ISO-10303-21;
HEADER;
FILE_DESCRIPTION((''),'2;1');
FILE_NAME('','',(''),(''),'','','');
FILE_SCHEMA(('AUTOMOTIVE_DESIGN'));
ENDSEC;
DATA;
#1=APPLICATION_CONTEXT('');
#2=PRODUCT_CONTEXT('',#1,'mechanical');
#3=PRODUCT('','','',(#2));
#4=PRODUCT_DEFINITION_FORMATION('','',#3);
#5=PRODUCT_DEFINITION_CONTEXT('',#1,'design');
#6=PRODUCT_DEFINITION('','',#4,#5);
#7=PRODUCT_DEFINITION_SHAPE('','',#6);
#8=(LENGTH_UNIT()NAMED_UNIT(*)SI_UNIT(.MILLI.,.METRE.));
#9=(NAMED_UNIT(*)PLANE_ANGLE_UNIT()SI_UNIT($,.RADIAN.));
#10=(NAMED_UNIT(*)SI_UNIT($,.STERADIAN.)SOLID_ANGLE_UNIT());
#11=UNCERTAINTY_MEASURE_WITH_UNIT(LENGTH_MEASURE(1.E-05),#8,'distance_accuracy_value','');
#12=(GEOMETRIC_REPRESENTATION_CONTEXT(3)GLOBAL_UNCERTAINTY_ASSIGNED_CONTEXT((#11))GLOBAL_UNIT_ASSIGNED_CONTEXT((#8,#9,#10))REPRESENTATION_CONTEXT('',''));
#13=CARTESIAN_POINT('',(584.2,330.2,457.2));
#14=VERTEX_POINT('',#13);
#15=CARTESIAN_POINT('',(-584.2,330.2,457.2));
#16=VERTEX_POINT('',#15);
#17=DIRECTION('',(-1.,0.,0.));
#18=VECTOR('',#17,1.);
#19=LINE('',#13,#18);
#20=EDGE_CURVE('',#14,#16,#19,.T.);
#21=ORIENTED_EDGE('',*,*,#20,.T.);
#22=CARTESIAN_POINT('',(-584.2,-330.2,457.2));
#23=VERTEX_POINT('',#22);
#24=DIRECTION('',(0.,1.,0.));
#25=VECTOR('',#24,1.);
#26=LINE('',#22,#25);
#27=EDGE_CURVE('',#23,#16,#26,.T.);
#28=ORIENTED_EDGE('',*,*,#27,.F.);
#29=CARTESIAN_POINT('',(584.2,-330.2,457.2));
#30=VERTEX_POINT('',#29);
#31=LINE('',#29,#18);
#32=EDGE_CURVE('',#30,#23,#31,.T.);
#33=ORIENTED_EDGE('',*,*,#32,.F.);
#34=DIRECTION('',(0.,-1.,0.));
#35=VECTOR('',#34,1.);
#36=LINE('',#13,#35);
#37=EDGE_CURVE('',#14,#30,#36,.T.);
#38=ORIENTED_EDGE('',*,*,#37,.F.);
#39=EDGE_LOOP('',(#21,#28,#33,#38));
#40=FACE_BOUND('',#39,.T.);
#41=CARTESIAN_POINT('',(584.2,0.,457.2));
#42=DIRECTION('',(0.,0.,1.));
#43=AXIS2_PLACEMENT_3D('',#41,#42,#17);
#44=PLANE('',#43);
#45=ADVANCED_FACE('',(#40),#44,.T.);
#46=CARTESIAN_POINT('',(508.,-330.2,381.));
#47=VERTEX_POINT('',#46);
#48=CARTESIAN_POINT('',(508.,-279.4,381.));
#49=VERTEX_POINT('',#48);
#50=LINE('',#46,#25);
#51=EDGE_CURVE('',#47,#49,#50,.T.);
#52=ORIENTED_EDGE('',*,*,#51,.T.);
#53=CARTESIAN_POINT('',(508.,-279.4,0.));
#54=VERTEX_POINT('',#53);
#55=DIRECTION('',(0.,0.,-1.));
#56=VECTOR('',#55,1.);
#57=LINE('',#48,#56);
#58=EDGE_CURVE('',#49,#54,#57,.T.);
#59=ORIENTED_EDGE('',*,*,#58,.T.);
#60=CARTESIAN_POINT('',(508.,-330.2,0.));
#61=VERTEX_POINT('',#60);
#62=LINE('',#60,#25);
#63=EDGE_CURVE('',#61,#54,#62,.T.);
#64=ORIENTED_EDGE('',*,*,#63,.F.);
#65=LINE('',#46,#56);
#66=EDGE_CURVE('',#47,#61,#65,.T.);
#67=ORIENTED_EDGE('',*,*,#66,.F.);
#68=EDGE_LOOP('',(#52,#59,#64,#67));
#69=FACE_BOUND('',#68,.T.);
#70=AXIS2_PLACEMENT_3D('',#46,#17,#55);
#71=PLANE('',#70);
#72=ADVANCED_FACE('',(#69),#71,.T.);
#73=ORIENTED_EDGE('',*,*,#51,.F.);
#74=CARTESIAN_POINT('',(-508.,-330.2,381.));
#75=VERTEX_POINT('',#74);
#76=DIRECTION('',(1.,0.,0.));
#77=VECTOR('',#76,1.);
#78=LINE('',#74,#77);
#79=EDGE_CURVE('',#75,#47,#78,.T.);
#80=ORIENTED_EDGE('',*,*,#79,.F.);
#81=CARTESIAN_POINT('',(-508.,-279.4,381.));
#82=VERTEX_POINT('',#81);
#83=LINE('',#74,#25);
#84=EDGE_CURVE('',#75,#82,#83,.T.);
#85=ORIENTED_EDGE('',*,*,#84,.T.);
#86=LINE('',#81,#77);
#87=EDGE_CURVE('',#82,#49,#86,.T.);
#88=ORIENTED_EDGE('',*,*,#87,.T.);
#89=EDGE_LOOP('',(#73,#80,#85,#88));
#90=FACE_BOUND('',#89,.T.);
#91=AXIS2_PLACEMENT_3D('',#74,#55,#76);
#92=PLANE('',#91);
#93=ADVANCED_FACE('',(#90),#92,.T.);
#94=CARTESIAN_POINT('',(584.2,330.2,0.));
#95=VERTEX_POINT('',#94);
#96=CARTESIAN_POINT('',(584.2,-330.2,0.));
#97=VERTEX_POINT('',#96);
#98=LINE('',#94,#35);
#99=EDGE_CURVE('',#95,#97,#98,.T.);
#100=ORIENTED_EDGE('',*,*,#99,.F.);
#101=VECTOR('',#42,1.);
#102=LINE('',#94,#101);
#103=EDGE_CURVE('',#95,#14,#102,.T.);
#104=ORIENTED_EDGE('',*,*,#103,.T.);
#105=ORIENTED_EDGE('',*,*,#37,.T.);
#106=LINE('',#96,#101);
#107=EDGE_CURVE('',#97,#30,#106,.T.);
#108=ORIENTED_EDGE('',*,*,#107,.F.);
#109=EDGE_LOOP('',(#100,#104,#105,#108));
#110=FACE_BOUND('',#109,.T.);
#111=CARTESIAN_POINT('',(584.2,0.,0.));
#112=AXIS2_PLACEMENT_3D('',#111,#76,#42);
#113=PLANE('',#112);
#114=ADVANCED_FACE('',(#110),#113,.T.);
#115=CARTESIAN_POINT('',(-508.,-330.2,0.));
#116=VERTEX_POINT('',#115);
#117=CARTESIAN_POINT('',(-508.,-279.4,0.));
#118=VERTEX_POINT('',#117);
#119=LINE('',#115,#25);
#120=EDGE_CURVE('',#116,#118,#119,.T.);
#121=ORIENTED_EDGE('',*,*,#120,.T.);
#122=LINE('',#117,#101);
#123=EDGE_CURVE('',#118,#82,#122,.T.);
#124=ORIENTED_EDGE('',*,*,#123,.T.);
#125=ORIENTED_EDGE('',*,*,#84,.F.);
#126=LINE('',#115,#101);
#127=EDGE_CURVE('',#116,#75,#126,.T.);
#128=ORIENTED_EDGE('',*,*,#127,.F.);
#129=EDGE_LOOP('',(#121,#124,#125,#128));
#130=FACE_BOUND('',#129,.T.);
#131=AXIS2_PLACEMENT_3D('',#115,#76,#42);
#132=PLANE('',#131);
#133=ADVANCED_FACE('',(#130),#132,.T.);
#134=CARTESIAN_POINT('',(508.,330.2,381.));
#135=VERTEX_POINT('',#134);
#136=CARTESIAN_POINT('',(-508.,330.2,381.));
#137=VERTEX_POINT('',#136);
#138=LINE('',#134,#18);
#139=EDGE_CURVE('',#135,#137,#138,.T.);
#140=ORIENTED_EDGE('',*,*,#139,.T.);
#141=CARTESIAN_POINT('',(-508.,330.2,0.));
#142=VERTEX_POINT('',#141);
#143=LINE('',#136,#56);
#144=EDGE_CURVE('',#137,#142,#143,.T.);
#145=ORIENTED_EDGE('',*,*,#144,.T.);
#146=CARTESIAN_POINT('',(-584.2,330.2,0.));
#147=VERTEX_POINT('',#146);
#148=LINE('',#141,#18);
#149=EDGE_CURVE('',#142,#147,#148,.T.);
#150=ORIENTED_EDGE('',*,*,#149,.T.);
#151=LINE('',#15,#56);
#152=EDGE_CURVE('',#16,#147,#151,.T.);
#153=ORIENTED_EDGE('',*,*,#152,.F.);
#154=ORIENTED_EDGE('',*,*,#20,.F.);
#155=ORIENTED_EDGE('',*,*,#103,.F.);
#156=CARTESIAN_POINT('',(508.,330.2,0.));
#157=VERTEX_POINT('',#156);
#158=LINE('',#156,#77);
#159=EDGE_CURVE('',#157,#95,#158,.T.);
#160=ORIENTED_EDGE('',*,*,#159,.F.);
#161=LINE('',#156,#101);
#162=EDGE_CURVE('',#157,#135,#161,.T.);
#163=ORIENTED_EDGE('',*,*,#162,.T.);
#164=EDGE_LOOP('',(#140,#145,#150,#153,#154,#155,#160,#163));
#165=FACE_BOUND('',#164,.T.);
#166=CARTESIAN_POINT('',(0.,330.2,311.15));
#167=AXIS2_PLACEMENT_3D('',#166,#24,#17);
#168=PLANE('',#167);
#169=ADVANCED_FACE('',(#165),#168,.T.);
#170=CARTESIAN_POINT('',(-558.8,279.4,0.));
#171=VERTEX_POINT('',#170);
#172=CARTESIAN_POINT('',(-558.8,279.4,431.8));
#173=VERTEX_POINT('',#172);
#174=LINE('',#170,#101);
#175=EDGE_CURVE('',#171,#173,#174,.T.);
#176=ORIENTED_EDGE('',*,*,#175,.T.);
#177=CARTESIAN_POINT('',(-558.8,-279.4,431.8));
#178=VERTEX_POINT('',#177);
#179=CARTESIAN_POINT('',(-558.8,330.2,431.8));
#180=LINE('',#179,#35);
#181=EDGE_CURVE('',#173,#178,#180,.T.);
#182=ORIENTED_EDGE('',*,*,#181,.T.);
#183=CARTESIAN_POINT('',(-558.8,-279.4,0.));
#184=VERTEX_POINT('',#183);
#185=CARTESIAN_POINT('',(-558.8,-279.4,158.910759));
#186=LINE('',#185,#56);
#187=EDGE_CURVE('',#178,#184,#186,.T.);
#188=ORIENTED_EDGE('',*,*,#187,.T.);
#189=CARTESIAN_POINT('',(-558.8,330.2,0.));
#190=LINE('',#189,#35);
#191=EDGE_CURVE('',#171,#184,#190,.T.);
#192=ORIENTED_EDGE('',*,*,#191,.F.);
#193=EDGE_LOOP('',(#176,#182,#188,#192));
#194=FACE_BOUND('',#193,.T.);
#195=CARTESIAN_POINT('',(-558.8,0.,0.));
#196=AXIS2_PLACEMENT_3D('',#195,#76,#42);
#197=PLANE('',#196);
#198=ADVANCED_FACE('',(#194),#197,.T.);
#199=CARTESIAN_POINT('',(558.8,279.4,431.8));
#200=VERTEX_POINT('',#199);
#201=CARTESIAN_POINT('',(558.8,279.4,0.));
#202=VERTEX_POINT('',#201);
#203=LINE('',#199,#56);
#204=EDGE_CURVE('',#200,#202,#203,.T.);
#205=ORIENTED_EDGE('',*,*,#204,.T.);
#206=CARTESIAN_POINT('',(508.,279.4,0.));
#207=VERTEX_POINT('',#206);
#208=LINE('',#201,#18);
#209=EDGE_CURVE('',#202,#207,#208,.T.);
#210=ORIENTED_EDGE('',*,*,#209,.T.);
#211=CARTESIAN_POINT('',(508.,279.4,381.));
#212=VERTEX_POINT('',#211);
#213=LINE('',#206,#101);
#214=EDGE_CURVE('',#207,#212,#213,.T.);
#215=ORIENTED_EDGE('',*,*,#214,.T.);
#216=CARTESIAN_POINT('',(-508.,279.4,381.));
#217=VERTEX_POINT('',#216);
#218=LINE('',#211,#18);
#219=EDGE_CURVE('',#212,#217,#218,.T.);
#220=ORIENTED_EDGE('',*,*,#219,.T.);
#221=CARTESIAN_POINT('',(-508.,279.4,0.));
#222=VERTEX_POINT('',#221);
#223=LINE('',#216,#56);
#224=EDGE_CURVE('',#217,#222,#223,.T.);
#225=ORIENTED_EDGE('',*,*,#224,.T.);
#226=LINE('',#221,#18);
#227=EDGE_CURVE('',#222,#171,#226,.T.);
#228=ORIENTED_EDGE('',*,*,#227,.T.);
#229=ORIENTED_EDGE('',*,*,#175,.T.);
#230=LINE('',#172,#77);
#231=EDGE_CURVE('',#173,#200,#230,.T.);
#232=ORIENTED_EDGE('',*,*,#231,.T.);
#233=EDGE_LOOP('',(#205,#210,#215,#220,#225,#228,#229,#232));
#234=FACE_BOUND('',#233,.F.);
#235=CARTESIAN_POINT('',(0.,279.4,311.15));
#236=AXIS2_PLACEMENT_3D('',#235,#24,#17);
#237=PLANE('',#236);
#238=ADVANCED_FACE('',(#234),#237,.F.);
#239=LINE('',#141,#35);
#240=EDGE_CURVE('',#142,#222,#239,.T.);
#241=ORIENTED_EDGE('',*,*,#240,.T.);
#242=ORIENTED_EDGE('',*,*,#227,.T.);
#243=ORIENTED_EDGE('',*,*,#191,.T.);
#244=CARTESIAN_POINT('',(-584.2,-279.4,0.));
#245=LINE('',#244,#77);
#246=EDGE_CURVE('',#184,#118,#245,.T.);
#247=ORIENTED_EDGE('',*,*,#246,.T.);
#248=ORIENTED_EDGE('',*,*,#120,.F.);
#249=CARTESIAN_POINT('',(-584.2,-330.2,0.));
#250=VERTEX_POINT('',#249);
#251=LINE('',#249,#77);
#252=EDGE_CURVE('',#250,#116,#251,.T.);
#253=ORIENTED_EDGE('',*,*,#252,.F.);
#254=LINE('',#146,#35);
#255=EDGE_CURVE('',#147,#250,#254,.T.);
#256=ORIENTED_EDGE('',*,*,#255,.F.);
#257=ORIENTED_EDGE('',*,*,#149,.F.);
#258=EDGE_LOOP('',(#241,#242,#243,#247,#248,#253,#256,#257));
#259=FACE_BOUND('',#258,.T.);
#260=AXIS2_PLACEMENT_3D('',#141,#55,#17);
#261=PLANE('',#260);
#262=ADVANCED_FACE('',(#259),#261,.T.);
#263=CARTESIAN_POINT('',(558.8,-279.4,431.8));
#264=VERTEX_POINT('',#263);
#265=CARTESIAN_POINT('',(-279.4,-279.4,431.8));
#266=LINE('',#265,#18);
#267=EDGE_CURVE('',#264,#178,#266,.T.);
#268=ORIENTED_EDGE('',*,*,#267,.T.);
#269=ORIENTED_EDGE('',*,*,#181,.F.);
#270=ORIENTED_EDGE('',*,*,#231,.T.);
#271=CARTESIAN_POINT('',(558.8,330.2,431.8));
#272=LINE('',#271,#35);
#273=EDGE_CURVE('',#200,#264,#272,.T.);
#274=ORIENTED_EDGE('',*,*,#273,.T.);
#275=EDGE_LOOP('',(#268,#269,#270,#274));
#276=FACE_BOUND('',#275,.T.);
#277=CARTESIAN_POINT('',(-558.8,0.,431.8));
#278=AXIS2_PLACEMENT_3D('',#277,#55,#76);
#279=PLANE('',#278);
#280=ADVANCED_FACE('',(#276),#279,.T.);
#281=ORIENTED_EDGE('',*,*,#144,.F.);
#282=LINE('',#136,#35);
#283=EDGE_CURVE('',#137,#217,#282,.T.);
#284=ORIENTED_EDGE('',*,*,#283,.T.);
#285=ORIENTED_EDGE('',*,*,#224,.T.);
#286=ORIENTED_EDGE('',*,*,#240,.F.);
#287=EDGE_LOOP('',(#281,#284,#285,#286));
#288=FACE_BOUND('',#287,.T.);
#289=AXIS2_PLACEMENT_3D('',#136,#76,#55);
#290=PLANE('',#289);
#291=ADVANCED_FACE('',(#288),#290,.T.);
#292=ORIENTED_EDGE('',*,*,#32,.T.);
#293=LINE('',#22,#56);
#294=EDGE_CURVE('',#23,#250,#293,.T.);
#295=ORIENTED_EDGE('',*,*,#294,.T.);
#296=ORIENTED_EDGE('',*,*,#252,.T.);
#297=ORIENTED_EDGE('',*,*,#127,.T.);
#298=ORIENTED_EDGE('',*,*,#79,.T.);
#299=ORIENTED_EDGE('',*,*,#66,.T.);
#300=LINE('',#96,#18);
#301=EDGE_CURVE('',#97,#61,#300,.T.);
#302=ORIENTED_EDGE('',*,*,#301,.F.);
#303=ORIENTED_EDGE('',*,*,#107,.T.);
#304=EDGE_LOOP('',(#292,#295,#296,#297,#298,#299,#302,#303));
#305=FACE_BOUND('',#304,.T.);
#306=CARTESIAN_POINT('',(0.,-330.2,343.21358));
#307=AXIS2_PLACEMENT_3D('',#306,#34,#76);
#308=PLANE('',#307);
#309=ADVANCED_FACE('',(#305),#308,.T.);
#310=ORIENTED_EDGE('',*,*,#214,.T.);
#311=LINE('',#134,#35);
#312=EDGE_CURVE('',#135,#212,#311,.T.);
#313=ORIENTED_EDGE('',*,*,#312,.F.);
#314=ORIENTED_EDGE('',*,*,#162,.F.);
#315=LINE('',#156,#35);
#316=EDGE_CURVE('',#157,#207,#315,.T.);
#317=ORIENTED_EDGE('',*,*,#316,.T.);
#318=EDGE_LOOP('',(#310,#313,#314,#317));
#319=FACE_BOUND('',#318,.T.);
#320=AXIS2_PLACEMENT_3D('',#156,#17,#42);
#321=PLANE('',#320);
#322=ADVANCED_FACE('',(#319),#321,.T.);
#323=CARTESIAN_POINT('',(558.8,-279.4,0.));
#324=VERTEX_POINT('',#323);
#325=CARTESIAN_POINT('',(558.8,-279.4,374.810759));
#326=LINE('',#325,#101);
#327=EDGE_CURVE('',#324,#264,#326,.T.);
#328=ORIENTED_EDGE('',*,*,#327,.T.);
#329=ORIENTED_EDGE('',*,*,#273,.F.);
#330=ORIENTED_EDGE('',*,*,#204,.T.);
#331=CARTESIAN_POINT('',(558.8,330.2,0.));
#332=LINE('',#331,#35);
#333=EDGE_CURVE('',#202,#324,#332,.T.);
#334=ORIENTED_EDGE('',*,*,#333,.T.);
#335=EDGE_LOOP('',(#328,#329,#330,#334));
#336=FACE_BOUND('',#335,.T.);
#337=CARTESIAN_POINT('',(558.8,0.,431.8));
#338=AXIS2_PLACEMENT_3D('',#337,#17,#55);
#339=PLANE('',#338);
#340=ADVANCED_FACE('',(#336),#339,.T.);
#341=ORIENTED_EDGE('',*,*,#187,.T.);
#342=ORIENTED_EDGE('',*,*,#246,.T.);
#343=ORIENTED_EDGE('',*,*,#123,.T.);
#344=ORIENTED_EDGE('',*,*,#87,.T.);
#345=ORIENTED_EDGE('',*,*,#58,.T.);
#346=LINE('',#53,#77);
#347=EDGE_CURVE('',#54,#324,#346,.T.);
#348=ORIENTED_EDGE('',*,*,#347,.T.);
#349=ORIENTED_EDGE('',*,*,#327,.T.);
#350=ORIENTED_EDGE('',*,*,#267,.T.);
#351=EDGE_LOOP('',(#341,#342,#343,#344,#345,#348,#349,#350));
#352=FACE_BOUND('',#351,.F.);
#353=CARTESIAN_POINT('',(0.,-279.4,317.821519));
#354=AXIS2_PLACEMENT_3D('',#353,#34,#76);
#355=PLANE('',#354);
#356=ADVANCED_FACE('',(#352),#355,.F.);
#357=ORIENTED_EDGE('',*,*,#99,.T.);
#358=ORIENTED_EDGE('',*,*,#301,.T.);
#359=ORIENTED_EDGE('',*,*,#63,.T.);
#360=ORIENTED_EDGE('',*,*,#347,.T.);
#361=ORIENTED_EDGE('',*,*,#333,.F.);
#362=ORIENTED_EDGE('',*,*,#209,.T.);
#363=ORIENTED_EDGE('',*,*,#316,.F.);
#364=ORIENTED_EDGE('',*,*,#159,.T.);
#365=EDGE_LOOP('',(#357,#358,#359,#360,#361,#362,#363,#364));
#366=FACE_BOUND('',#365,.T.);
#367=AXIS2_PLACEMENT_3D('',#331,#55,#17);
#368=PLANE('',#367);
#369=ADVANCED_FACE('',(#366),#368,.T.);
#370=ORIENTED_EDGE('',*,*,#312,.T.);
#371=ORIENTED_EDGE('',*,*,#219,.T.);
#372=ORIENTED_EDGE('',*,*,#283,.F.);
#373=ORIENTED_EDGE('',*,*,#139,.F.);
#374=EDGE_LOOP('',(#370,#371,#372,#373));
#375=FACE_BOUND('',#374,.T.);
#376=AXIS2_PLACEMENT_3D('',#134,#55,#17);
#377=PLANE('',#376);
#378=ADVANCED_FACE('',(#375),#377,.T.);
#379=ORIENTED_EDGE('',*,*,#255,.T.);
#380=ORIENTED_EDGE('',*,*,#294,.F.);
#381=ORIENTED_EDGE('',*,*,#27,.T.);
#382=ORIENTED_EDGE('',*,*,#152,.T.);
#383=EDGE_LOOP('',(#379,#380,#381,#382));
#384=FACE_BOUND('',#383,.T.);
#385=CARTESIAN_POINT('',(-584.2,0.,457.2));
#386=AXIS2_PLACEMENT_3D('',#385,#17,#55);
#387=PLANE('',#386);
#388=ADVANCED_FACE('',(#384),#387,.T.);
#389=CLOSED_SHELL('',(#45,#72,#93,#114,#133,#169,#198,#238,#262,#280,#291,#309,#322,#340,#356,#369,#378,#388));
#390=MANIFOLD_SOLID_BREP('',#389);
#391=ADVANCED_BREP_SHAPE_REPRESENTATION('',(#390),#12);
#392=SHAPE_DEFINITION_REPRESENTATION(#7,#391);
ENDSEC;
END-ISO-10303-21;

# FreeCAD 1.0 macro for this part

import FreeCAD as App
import Part
import Sketcher
Q = App.Units.Quantity

doc = App.newDocument("Part")
params = doc.addObject("Spreadsheet::Sheet", "Params")
for row, (alias, value) in enumerate([
    ("sketch1_width", "1 in"),
    ("sketch1_width2", "44 in"),
    ("sketch1_height", "18 in"),
    ("sketch1_height2", "17 in"),
    ("pad1_length", "26 in"),
    ("sketch2_width", "2 in"),
    ("sketch2_width2", "40 in"),
    ("sketch2_height", "17 in"),
    ("sketch2_height2", "15 in"),
    ("pad2_length", "2 in"),
    ("sketch3_width", "3 in"),
    ("sketch3_width2", "40 in"),
    ("sketch3_height", "18 in"),
    ("sketch3_height2", "15 in"),
    ("pad3_length", "2 in"),
], start=1):
    params.set(f"A{row}", alias)
    params.set(f"B{row}", "=" + value)
    params.setAlias(f"B{row}", alias)

body = doc.addObject("PartDesign::Body", "Body")

# Sketch on XZ plane
sketch1 = body.newObject("Sketcher::SketchObject", "Sketch")
sketch1.AttachmentSupport = (doc.getObject("XZ_Plane"), [""])
sketch1.MapMode = "FlatFace"
sketch1.addGeometry([
    Part.LineSegment(App.Vector(-584, 457, 0), App.Vector(-584, 0, 0)),  # 0
    Part.LineSegment(App.Vector(-584, 0, 0), App.Vector(-559, 0, 0)),  # 1
    Part.LineSegment(App.Vector(-559, 0, 0), App.Vector(-559, 432, 0)),  # 2
    Part.LineSegment(App.Vector(-559, 432, 0), App.Vector(559, 432, 0)),  # 3
    Part.LineSegment(App.Vector(559, 432, 0), App.Vector(559, 0, 0)),  # 4
    Part.LineSegment(App.Vector(559, 0, 0), App.Vector(584, 0, 0)),  # 5
    Part.LineSegment(App.Vector(584, 0, 0), App.Vector(584, 457, 0)),  # 6
    Part.LineSegment(App.Vector(584, 457, 0), App.Vector(-584, 457, 0)),  # 7
], False)
sketch1.addConstraint([
    Sketcher.Constraint("Coincident", 0, 2, 1, 1),
    Sketcher.Constraint("Coincident", 1, 2, 2, 1),
    Sketcher.Constraint("Coincident", 2, 2, 3, 1),
    Sketcher.Constraint("Coincident", 3, 2, 4, 1),
    Sketcher.Constraint("Coincident", 4, 2, 5, 1),
    Sketcher.Constraint("Coincident", 5, 2, 6, 1),
    Sketcher.Constraint("Coincident", 6, 2, 7, 1),
    Sketcher.Constraint("Coincident", 7, 2, 0, 1),
    Sketcher.Constraint("Vertical", 0),
    Sketcher.Constraint("Horizontal", 1),
    Sketcher.Constraint("Vertical", 2),
    Sketcher.Constraint("Horizontal", 3),
    Sketcher.Constraint("Vertical", 4),
    Sketcher.Constraint("Horizontal", 5),
    Sketcher.Constraint("Vertical", 6),
    Sketcher.Constraint("Horizontal", 7),
    Sketcher.Constraint("Symmetric", 1, 2, 4, 2, -1, 1),
    Sketcher.Constraint("Symmetric", 0, 2, 5, 2, -2),
    Sketcher.Constraint("DistanceX", 1, 1, 1, 2, Q("1 in")),
    Sketcher.Constraint("DistanceX", 3, 1, 3, 2, Q("44 in")),
    Sketcher.Constraint("DistanceY", 0, 2, 0, 1, Q("18 in")),
    Sketcher.Constraint("DistanceY", 2, 1, 2, 2, Q("17 in")),
])
sketch1.setExpression("Constraints[18]", "Params.sketch1_width")
sketch1.setExpression("Constraints[19]", "Params.sketch1_width2")
sketch1.setExpression("Constraints[20]", "Params.sketch1_height")
sketch1.setExpression("Constraints[21]", "Params.sketch1_height2")
pad1 = body.newObject("PartDesign::Pad", "Pad")
pad1.Profile = sketch1
pad1.setExpression("Length", "Params.pad1_length")
pad1.Midplane = True

# Sketch on XZ plane
sketch2 = body.newObject("Sketcher::SketchObject", "Sketch001")
sketch2.AttachmentSupport = (doc.getObject("XZ_Plane"), [""])
sketch2.MapMode = "FlatFace"
sketch2.AttachmentOffset = App.Placement(App.Vector(0, 0, -13 * 25.4), App.Rotation())
sketch2.addGeometry([
    Part.LineSegment(App.Vector(559, 432, 0), App.Vector(559, 0, 0)),  # 0
    Part.LineSegment(App.Vector(559, 0, 0), App.Vector(508, 0, 0)),  # 1
    Part.LineSegment(App.Vector(508, 0, 0), App.Vector(508, 381, 0)),  # 2
    Part.LineSegment(App.Vector(508, 381, 0), App.Vector(-508, 381, 0)),  # 3
    Part.LineSegment(App.Vector(-508, 381, 0), App.Vector(-508, 0, 0)),  # 4
    Part.LineSegment(App.Vector(-508, 0, 0), App.Vector(-559, 0, 0)),  # 5
    Part.LineSegment(App.Vector(-559, 0, 0), App.Vector(-559, 432, 0)),  # 6
    Part.LineSegment(App.Vector(-559, 432, 0), App.Vector(559, 432, 0)),  # 7
], False)
sketch2.addConstraint([
    Sketcher.Constraint("Coincident", 0, 2, 1, 1),
    Sketcher.Constraint("Coincident", 1, 2, 2, 1),
    Sketcher.Constraint("Coincident", 2, 2, 3, 1),
    Sketcher.Constraint("Coincident", 3, 2, 4, 1),
    Sketcher.Constraint("Coincident", 4, 2, 5, 1),
    Sketcher.Constraint("Coincident", 5, 2, 6, 1),
    Sketcher.Constraint("Coincident", 6, 2, 7, 1),
    Sketcher.Constraint("Coincident", 7, 2, 0, 1),
    Sketcher.Constraint("Vertical", 0),
    Sketcher.Constraint("Horizontal", 1),
    Sketcher.Constraint("Vertical", 2),
    Sketcher.Constraint("Horizontal", 3),
    Sketcher.Constraint("Vertical", 4),
    Sketcher.Constraint("Horizontal", 5),
    Sketcher.Constraint("Vertical", 6),
    Sketcher.Constraint("Horizontal", 7),
    Sketcher.Constraint("Symmetric", 1, 2, 4, 2, -1, 1),
    Sketcher.Constraint("Symmetric", 0, 2, 5, 2, -2),
    Sketcher.Constraint("DistanceX", 1, 2, 1, 1, Q("2 in")),
    Sketcher.Constraint("DistanceX", 3, 2, 3, 1, Q("40 in")),
    Sketcher.Constraint("DistanceY", 0, 2, 0, 1, Q("17 in")),
    Sketcher.Constraint("DistanceY", 2, 1, 2, 2, Q("15 in")),
])
sketch2.setExpression("Constraints[18]", "Params.sketch2_width")
sketch2.setExpression("Constraints[19]", "Params.sketch2_width2")
sketch2.setExpression("Constraints[20]", "Params.sketch2_height")
sketch2.setExpression("Constraints[21]", "Params.sketch2_height2")
pad2 = body.newObject("PartDesign::Pad", "Pad001")
pad2.Profile = sketch2
pad2.setExpression("Length", "Params.pad2_length")

# Sketch on XZ plane
sketch3 = body.newObject("Sketcher::SketchObject", "Sketch002")
sketch3.AttachmentSupport = (doc.getObject("XZ_Plane"), [""])
sketch3.MapMode = "FlatFace"
sketch3.AttachmentOffset = App.Placement(App.Vector(0, 0, 13 * 25.4), App.Rotation())
sketch3.addGeometry([
    Part.LineSegment(App.Vector(-584, 457, 0), App.Vector(-584, 0, 0)),  # 0
    Part.LineSegment(App.Vector(-584, 0, 0), App.Vector(-508, 0, 0)),  # 1
    Part.LineSegment(App.Vector(-508, 0, 0), App.Vector(-508, 381, 0)),  # 2
    Part.LineSegment(App.Vector(-508, 381, 0), App.Vector(508, 381, 0)),  # 3
    Part.LineSegment(App.Vector(508, 381, 0), App.Vector(508, 0, 0)),  # 4
    Part.LineSegment(App.Vector(508, 0, 0), App.Vector(584, 0, 0)),  # 5
    Part.LineSegment(App.Vector(584, 0, 0), App.Vector(584, 457, 0)),  # 6
    Part.LineSegment(App.Vector(584, 457, 0), App.Vector(-584, 457, 0)),  # 7
], False)
sketch3.addConstraint([
    Sketcher.Constraint("Coincident", 0, 2, 1, 1),
    Sketcher.Constraint("Coincident", 1, 2, 2, 1),
    Sketcher.Constraint("Coincident", 2, 2, 3, 1),
    Sketcher.Constraint("Coincident", 3, 2, 4, 1),
    Sketcher.Constraint("Coincident", 4, 2, 5, 1),
    Sketcher.Constraint("Coincident", 5, 2, 6, 1),
    Sketcher.Constraint("Coincident", 6, 2, 7, 1),
    Sketcher.Constraint("Coincident", 7, 2, 0, 1),
    Sketcher.Constraint("Vertical", 0),
    Sketcher.Constraint("Horizontal", 1),
    Sketcher.Constraint("Vertical", 2),
    Sketcher.Constraint("Horizontal", 3),
    Sketcher.Constraint("Vertical", 4),
    Sketcher.Constraint("Horizontal", 5),
    Sketcher.Constraint("Vertical", 6),
    Sketcher.Constraint("Horizontal", 7),
    Sketcher.Constraint("Symmetric", 1, 2, 4, 2, -1, 1),
    Sketcher.Constraint("Symmetric", 0, 2, 5, 2, -2),
    Sketcher.Constraint("DistanceX", 1, 1, 1, 2, Q("3 in")),
    Sketcher.Constraint("DistanceX", 3, 1, 3, 2, Q("40 in")),
    Sketcher.Constraint("DistanceY", 0, 2, 0, 1, Q("18 in")),
    Sketcher.Constraint("DistanceY", 2, 1, 2, 2, Q("15 in")),
])
sketch3.setExpression("Constraints[18]", "Params.sketch3_width")
sketch3.setExpression("Constraints[19]", "Params.sketch3_width2")
sketch3.setExpression("Constraints[20]", "Params.sketch3_height")
sketch3.setExpression("Constraints[21]", "Params.sketch3_height2")
pad3 = body.newObject("PartDesign::Pad", "Pad002")
pad3.Profile = sketch3
pad3.setExpression("Length", "Params.pad3_length")
pad3.Reversed = True

doc.recompute()
